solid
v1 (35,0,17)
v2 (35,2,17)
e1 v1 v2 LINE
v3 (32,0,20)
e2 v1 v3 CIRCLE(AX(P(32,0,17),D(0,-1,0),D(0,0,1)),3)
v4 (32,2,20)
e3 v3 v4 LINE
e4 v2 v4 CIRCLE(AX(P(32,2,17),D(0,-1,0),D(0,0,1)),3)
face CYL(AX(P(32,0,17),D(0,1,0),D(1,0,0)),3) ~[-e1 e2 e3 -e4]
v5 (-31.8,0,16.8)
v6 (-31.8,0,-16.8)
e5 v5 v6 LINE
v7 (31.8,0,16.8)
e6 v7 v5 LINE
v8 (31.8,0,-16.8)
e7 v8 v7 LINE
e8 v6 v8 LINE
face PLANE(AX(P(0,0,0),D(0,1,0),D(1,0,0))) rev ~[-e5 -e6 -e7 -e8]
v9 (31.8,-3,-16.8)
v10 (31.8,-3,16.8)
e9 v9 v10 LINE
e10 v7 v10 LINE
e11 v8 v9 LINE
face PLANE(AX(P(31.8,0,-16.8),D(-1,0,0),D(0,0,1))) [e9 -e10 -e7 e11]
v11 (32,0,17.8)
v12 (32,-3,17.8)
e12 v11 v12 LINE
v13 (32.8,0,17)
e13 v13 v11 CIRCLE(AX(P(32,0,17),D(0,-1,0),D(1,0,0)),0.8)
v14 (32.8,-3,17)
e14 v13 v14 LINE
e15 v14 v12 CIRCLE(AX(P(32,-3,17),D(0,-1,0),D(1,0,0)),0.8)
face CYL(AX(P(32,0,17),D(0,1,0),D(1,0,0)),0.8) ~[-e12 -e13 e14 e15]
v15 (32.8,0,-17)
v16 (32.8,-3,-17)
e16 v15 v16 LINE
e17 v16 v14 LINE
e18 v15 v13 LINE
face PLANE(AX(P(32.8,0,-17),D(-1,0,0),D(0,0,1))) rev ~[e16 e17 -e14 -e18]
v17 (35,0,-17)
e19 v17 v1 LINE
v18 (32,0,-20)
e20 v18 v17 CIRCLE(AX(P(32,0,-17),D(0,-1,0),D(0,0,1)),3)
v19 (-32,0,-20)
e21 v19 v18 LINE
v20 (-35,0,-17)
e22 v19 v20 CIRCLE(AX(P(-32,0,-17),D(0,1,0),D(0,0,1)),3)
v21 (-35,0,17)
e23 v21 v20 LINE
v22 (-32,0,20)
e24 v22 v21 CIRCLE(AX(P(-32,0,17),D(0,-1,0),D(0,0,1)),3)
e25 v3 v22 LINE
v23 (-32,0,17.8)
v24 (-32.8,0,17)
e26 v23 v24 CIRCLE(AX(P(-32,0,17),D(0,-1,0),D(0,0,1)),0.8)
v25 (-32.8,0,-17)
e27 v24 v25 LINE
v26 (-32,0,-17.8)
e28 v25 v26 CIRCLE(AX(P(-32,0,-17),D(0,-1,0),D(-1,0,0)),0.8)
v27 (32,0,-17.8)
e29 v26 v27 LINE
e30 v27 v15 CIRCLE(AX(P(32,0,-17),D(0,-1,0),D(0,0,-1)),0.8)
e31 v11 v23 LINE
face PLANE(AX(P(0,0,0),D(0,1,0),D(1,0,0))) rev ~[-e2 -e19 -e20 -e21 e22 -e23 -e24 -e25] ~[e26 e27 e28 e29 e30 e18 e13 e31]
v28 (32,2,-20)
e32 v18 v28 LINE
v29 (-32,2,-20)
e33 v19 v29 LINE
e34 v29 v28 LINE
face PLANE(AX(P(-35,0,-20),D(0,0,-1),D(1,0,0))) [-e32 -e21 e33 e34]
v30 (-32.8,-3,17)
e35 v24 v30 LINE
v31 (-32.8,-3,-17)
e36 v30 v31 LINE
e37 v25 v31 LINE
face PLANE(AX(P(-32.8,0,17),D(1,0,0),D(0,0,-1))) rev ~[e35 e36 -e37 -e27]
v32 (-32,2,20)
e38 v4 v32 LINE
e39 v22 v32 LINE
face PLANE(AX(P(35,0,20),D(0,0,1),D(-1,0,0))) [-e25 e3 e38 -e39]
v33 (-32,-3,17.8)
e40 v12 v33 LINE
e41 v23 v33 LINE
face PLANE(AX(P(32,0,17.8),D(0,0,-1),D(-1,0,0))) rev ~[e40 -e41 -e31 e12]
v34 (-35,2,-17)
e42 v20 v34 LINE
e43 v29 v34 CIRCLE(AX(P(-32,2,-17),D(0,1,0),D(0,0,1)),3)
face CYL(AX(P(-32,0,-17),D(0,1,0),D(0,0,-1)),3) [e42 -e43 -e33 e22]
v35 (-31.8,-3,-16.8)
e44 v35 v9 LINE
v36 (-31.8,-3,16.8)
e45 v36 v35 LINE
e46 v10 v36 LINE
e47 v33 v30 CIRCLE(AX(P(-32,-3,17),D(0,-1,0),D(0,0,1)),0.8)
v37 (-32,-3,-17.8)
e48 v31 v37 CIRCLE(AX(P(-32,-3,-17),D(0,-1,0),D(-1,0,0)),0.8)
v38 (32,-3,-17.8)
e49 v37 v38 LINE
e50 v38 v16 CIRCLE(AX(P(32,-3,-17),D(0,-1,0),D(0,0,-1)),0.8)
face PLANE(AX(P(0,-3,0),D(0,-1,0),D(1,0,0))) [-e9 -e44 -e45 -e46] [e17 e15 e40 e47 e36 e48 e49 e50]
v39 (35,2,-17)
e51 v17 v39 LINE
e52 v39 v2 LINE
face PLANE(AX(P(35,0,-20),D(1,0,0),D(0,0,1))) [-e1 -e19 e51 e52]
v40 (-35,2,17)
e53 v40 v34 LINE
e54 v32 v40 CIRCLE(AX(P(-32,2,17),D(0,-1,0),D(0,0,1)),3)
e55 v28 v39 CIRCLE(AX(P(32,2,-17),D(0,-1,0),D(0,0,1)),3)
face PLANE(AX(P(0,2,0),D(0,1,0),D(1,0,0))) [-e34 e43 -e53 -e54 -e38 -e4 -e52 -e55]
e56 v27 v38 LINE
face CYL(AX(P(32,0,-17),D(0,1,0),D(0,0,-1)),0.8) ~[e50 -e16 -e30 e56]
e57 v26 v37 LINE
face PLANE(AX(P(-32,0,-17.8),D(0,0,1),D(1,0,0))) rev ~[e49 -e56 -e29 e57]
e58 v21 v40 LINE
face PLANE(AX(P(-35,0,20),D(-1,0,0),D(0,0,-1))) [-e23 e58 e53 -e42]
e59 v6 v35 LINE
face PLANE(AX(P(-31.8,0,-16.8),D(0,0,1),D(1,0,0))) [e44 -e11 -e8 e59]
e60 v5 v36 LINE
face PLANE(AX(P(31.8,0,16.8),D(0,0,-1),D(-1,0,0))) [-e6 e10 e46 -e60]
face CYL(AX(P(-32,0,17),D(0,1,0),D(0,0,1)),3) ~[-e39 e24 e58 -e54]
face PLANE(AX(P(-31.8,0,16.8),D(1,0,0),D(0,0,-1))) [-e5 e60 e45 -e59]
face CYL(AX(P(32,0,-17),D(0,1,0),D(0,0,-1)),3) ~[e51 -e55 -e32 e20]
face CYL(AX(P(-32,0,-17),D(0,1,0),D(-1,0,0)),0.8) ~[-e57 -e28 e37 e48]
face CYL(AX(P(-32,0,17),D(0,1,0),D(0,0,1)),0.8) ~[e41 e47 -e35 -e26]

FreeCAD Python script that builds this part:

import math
import FreeCAD as App
import Part
import Sketcher
Q = App.Units.Quantity


def edges_at(feature, points):
    """Names of the edges that pass closest to the given points."""
    edges = feature.Shape.Edges
    near = lambda p: min(range(len(edges)), key=lambda i: edges[i].distToShape(Part.Vertex(*p))[0])
    return sorted({f"Edge{near(p) + 1}" for p in points})

doc = App.newDocument("Part")
body = doc.addObject("PartDesign::Body", "Body")

sketch1 = doc.addObject("Sketcher::SketchObject", "Sketch")
body.addObject(sketch1)
sketch1.AttachmentSupport = (doc.XZ_Plane, [""])
sketch1.MapMode = "FlatFace"
sketch1.addGeometry([
    Part.LineSegment(App.Vector(35, -20, 0), App.Vector(-35, -20, 0)),
    Part.LineSegment(App.Vector(-35, -20, 0), App.Vector(-35, 20, 0)),
    Part.LineSegment(App.Vector(-35, 20, 0), App.Vector(35, 20, 0)),
    Part.LineSegment(App.Vector(35, 20, 0), App.Vector(35, -20, 0)),
], False)
sketch1.addConstraint([
    Sketcher.Constraint("Coincident", 0, 2, 1, 1),
    Sketcher.Constraint("Coincident", 1, 2, 2, 1),
    Sketcher.Constraint("Coincident", 2, 2, 3, 1),
    Sketcher.Constraint("Coincident", 3, 2, 0, 1),
    Sketcher.Constraint("Horizontal", 0),
    Sketcher.Constraint("Vertical", 1),
    Sketcher.Constraint("Horizontal", 2),
    Sketcher.Constraint("Vertical", 3),
    Sketcher.Constraint("Symmetric", 0, 2, 2, 2, -1, 1),
    Sketcher.Constraint("DistanceX", 0, 2, 0, 1, Q("70 mm")),
    Sketcher.Constraint("DistanceY", 1, 1, 1, 2, Q("40 mm")),
])
pad1 = doc.addObject("PartDesign::Pad", "Pad")
body.addObject(pad1)
pad1.Profile = sketch1
pad1.Length = 2
pad1.Reversed = True
doc.recompute()

fillet = doc.addObject("PartDesign::Fillet", "Fillet")
body.addObject(fillet)
fillet.Base = (pad1, edges_at(pad1, [
    (-35, 1, 20),
    (35, 1, -20),
    (-35, 1, -20),
    (35, 1, 20),
]))
fillet.Radius = 3

sketch2 = doc.addObject("Sketcher::SketchObject", "Sketch001")
body.addObject(sketch2)
sketch2.AttachmentSupport = (doc.XZ_Plane, [""])
sketch2.MapMode = "FlatFace"
sketch2.addGeometry([
    Part.ArcOfCircle(Part.Circle(App.Vector(-32, 17, 0), App.Vector(0, 0, 1), 0.8), math.radians(90), math.radians(180)),
    Part.LineSegment(App.Vector(-32.8, 17, 0), App.Vector(-32.8, -17, 0)),
    Part.ArcOfCircle(Part.Circle(App.Vector(-32, -17, 0), App.Vector(0, 0, 1), 0.8), math.radians(180), math.radians(270)),
    Part.LineSegment(App.Vector(-32, -17.8, 0), App.Vector(32, -17.8, 0)),
    Part.ArcOfCircle(Part.Circle(App.Vector(32, -17, 0), App.Vector(0, 0, 1), 0.8), math.radians(-90), math.radians(0)),
    Part.LineSegment(App.Vector(32.8, -17, 0), App.Vector(32.8, 17, 0)),
    Part.ArcOfCircle(Part.Circle(App.Vector(32, 17, 0), App.Vector(0, 0, 1), 0.8), math.radians(0), math.radians(90)),
    Part.LineSegment(App.Vector(32, 17.8, 0), App.Vector(-32, 17.8, 0)),
    Part.LineSegment(App.Vector(-31.8, -16.8, 0), App.Vector(-31.8, 16.8, 0)),
    Part.LineSegment(App.Vector(-31.8, 16.8, 0), App.Vector(31.8, 16.8, 0)),
    Part.LineSegment(App.Vector(31.8, 16.8, 0), App.Vector(31.8, -16.8, 0)),
    Part.LineSegment(App.Vector(31.8, -16.8, 0), App.Vector(-31.8, -16.8, 0)),
], False)
sketch2.addConstraint([
    Sketcher.Constraint("Tangent", 0, 2, 1, 1),
    Sketcher.Constraint("Tangent", 1, 2, 2, 1),
    Sketcher.Constraint("Tangent", 2, 2, 3, 1),
    Sketcher.Constraint("Tangent", 3, 2, 4, 1),
    Sketcher.Constraint("Tangent", 4, 2, 5, 1),
    Sketcher.Constraint("Tangent", 5, 2, 6, 1),
    Sketcher.Constraint("Tangent", 6, 2, 7, 1),
    Sketcher.Constraint("Tangent", 7, 2, 0, 1),
    Sketcher.Constraint("Coincident", 8, 2, 9, 1),
    Sketcher.Constraint("Coincident", 9, 2, 10, 1),
    Sketcher.Constraint("Coincident", 10, 2, 11, 1),
    Sketcher.Constraint("Coincident", 11, 2, 8, 1),
    Sketcher.Constraint("Vertical", 1),
    Sketcher.Constraint("Horizontal", 3),
    Sketcher.Constraint("Vertical", 5),
    Sketcher.Constraint("Horizontal", 7),
    Sketcher.Constraint("Vertical", 8),
    Sketcher.Constraint("Horizontal", 9),
    Sketcher.Constraint("Vertical", 10),
    Sketcher.Constraint("Horizontal", 11),
    Sketcher.Constraint("Equal", 0, 2),
    Sketcher.Constraint("Equal", 2, 4),
    Sketcher.Constraint("Equal", 4, 6),
    Sketcher.Constraint("Symmetric", 0, 3, 4, 3, -1, 1),
    Sketcher.Constraint("Symmetric", 8, 2, 10, 2, -1, 1),
    Sketcher.Constraint("Radius", 0, Q("0.8 mm")),
    Sketcher.Constraint("DistanceX", 3, 1, 3, 2, Q("64 mm")),
    Sketcher.Constraint("DistanceY", 1, 2, 1, 1, Q("34 mm")),
    Sketcher.Constraint("DistanceX", 9, 1, 9, 2, Q("63.6 mm")),
    Sketcher.Constraint("DistanceY", 8, 1, 8, 2, Q("33.6 mm")),
])
pad2 = doc.addObject("PartDesign::Pad", "Pad001")
body.addObject(pad2)
pad2.Profile = sketch2
pad2.Length = 3

doc.recompute()
